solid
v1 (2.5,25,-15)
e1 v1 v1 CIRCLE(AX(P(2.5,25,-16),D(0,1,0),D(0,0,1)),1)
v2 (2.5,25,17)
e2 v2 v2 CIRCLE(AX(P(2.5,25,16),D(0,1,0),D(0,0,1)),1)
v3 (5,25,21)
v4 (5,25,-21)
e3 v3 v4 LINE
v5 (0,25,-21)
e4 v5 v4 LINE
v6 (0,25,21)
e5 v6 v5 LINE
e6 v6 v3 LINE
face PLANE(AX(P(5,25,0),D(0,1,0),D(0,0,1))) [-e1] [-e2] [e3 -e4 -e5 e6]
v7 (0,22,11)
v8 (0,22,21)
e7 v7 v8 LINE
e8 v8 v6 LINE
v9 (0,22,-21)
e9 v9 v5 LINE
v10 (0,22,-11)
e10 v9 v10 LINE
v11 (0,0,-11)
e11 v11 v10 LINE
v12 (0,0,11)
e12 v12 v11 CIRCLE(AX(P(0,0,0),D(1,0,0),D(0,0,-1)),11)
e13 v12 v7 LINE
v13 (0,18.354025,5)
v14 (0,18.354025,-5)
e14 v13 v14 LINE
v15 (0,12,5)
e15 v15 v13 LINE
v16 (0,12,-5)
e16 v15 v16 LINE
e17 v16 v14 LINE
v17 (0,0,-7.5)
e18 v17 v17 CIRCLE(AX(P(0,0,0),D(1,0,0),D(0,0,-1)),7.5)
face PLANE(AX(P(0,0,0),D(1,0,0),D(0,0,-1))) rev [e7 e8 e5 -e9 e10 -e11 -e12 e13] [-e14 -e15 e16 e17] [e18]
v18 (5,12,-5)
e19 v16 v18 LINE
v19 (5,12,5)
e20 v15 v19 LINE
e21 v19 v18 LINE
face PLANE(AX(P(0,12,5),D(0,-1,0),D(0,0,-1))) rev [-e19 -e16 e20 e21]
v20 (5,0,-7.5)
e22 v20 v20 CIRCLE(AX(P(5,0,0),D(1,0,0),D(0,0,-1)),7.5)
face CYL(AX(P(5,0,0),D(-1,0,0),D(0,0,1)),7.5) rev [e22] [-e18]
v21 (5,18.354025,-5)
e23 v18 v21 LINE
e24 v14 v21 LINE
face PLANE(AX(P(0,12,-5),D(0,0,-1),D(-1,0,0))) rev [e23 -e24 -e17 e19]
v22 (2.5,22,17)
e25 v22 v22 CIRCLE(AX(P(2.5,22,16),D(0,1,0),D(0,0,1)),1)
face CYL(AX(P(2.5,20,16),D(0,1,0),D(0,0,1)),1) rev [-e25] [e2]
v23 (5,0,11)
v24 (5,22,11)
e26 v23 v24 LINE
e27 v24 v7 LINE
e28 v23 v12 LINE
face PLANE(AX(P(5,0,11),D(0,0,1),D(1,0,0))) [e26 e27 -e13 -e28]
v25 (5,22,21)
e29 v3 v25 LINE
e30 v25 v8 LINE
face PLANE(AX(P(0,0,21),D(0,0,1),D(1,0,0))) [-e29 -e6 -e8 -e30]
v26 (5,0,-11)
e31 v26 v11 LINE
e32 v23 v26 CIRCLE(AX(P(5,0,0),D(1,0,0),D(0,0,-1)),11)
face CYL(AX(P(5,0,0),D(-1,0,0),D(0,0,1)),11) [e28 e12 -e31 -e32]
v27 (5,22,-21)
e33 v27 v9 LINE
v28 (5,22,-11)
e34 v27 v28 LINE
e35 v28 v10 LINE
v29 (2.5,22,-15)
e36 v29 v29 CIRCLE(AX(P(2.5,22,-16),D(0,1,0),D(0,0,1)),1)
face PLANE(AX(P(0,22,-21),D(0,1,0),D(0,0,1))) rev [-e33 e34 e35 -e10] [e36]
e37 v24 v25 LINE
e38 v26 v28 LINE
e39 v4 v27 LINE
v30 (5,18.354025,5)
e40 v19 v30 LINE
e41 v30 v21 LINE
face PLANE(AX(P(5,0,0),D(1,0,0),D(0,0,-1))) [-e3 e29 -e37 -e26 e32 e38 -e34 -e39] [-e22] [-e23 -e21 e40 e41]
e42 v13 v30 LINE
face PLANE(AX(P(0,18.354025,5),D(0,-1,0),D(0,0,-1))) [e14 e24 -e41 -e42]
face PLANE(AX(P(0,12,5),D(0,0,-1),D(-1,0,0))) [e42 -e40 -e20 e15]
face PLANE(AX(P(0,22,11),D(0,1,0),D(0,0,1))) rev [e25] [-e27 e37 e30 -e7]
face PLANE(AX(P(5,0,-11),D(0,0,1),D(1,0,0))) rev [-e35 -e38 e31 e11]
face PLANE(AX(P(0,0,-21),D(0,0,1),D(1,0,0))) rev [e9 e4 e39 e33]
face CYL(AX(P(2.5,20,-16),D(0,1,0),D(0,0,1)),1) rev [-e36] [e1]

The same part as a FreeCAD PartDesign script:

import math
import FreeCAD as App
import Part
import Sketcher
from FreeCAD import Vector
Q = App.Units.Quantity


def add_polygon(sketch, points):
    """Adds a closed chain of lines whose ends are joined by coincident constraints."""
    first, n = sketch.GeometryCount, len(points)
    for a, b in zip(points, points[1:] + points[:1]):
        sketch.addGeometry(Part.LineSegment(App.Vector(*a, 0), App.Vector(*b, 0)), False)
    for i in range(n):
        sketch.addConstraint(Sketcher.Constraint("Coincident", first + i, 2, first + (i + 1) % n, 1))

doc = App.newDocument("Part")
body = doc.addObject("PartDesign::Body", "Body")

sketch1 = body.newObject("Sketcher::SketchObject", "Sketch")
sketch1.AttachmentSupport = (doc.getObject("YZ_Plane"), [""])
sketch1.MapMode = "FlatFace"
sketch1.addGeometry([
    Part.Circle(Vector(0, 0, 0), Vector(0, 0, 1), 11),
    Part.Circle(Vector(0, 0, 0), Vector(0, 0, 1), 7.5),
], False)
sketch1.addConstraint([
    Sketcher.Constraint("Coincident", 0, 3, -1, 1),
    Sketcher.Constraint("Coincident", 1, 3, -1, 1),
    Sketcher.Constraint("Diameter", 0, Q("22 mm")),
    Sketcher.Constraint("Diameter", 1, Q("15 mm")),
])
pad1 = body.newObject("PartDesign::Pad", "Pad")
pad1.Profile = sketch1
pad1.Length = 5

sketch2 = body.newObject("Sketcher::SketchObject", "Sketch001")
sketch2.AttachmentSupport = (doc.getObject("YZ_Plane"), [""])
sketch2.MapMode = "FlatFace"
sketch2.addGeometry([
    Part.LineSegment(Vector(25, 11, 0), Vector(0, 11, 0)),
    Part.ArcOfCircle(Part.Circle(Vector(0, 0, 0), Vector(0, 0, 1), 11), math.radians(-90), math.radians(90)),
    Part.LineSegment(Vector(0, -11, 0), Vector(25, -11, 0)),
    Part.LineSegment(Vector(25, -11, 0), Vector(25, 11, 0)),
], False)
sketch2.addConstraint([
    Sketcher.Constraint("Tangent", 0, 2, 1, 2),
    Sketcher.Constraint("Tangent", 1, 1, 2, 1),
    Sketcher.Constraint("Coincident", 2, 2, 3, 1),
    Sketcher.Constraint("Coincident", 3, 2, 0, 1),
    Sketcher.Constraint("Horizontal", 0),
    Sketcher.Constraint("Horizontal", 2),
    Sketcher.Constraint("Vertical", 3),
    Sketcher.Constraint("Coincident", 1, 3, -1, 1),
    Sketcher.Constraint("Radius", 1, Q("11 mm")),
    Sketcher.Constraint("DistanceX", 0, 2, 0, 1, Q("25 mm")),
])
pad2 = body.newObject("PartDesign::Pad", "Pad001")
pad2.Profile = sketch2
pad2.Length = 5

sketch3 = body.newObject("Sketcher::SketchObject", "Sketch002")
sketch3.AttachmentSupport = (doc.getObject("XY_Plane"), [""])
sketch3.MapMode = "FlatFace"
sketch3.AttachmentOffset = App.Placement(Vector(0, 0, -11), App.Rotation())
add_polygon(sketch3, [(5, 25), (5, 22), (0, 22), (0, 25)])
sketch3.addConstraint([
    Sketcher.Constraint("Vertical", 0),
    Sketcher.Constraint("Horizontal", 1),
    Sketcher.Constraint("Vertical", 2),
    Sketcher.Constraint("Horizontal", 3),
    Sketcher.Constraint("PointOnObject", 1, 2, -2),
    Sketcher.Constraint("DistanceX", 1, 2, 1, 1, Q("5 mm")),
    Sketcher.Constraint("DistanceY", 0, 2, 0, 1, Q("3 mm")),
    Sketcher.Constraint("DistanceY", -1, 1, 0, 2, Q("22 mm")),
])
pad3 = body.newObject("PartDesign::Pad", "Pad002")
pad3.Profile = sketch3
pad3.Length = 10
pad3.Reversed = True

sketch4 = body.newObject("Sketcher::SketchObject", "Sketch003")
sketch4.AttachmentSupport = (doc.getObject("XZ_Plane"), [""])
sketch4.MapMode = "FlatFace"
sketch4.AttachmentOffset = App.Placement(Vector(0, 0, -25), App.Rotation())
sketch4.addGeometry(Part.Circle(Vector(2.5, -16, 0), Vector(0, 0, 1), 1), False)
sketch4.addConstraint([
    Sketcher.Constraint("Diameter", 0, Q("2 mm")),
    Sketcher.Constraint("DistanceY", 0, 3, -1, 1, Q("16 mm")),
    Sketcher.Constraint("DistanceX", -1, 1, 0, 3, Q("2.5 mm")),
])
pocket1 = body.newObject("PartDesign::Pocket", "Pocket")
pocket1.Profile = sketch4
pocket1.Length = 5
pocket1.Reversed = True
doc.recompute()

linearpattern = body.newObject("PartDesign::LinearPattern", "LinearPattern")
linearpattern.Originals = [pad3, pocket1]
linearpattern.Direction = (doc.getObject("Z_Axis"), [""])
linearpattern.Mode = "offset"
linearpattern.Offset = 32
linearpattern.Occurrences = 2
body.Tip = linearpattern

sketch5 = body.newObject("Sketcher::SketchObject", "Sketch004")
sketch5.AttachmentSupport = (doc.getObject("YZ_Plane"), [""])
sketch5.MapMode = "FlatFace"
sketch5.AttachmentOffset = App.Placement(Vector(0, 0, 5), App.Rotation())
add_polygon(sketch5, [(18.354025, 5), (12, 5), (12, -5), (18.354025, -5)])
sketch5.addConstraint([
    Sketcher.Constraint("Horizontal", 0),
    Sketcher.Constraint("Vertical", 1),
    Sketcher.Constraint("Horizontal", 2),
    Sketcher.Constraint("Vertical", 3),
    Sketcher.Constraint("DistanceY", 1, 2, 1, 1, Q("10 mm")),
    Sketcher.Constraint("DistanceX", -1, 1, 0, 2, Q("12 mm")),
    Sketcher.Constraint("DistanceY", -1, 1, 0, 2, Q("5 mm")),
    Sketcher.Constraint("DistanceX", 0, 2, 0, 1, Q("6.354025 mm")),
])
pocket2 = body.newObject("PartDesign::Pocket", "Pocket001")
pocket2.Profile = sketch5
pocket2.Length = 5

doc.recompute()
